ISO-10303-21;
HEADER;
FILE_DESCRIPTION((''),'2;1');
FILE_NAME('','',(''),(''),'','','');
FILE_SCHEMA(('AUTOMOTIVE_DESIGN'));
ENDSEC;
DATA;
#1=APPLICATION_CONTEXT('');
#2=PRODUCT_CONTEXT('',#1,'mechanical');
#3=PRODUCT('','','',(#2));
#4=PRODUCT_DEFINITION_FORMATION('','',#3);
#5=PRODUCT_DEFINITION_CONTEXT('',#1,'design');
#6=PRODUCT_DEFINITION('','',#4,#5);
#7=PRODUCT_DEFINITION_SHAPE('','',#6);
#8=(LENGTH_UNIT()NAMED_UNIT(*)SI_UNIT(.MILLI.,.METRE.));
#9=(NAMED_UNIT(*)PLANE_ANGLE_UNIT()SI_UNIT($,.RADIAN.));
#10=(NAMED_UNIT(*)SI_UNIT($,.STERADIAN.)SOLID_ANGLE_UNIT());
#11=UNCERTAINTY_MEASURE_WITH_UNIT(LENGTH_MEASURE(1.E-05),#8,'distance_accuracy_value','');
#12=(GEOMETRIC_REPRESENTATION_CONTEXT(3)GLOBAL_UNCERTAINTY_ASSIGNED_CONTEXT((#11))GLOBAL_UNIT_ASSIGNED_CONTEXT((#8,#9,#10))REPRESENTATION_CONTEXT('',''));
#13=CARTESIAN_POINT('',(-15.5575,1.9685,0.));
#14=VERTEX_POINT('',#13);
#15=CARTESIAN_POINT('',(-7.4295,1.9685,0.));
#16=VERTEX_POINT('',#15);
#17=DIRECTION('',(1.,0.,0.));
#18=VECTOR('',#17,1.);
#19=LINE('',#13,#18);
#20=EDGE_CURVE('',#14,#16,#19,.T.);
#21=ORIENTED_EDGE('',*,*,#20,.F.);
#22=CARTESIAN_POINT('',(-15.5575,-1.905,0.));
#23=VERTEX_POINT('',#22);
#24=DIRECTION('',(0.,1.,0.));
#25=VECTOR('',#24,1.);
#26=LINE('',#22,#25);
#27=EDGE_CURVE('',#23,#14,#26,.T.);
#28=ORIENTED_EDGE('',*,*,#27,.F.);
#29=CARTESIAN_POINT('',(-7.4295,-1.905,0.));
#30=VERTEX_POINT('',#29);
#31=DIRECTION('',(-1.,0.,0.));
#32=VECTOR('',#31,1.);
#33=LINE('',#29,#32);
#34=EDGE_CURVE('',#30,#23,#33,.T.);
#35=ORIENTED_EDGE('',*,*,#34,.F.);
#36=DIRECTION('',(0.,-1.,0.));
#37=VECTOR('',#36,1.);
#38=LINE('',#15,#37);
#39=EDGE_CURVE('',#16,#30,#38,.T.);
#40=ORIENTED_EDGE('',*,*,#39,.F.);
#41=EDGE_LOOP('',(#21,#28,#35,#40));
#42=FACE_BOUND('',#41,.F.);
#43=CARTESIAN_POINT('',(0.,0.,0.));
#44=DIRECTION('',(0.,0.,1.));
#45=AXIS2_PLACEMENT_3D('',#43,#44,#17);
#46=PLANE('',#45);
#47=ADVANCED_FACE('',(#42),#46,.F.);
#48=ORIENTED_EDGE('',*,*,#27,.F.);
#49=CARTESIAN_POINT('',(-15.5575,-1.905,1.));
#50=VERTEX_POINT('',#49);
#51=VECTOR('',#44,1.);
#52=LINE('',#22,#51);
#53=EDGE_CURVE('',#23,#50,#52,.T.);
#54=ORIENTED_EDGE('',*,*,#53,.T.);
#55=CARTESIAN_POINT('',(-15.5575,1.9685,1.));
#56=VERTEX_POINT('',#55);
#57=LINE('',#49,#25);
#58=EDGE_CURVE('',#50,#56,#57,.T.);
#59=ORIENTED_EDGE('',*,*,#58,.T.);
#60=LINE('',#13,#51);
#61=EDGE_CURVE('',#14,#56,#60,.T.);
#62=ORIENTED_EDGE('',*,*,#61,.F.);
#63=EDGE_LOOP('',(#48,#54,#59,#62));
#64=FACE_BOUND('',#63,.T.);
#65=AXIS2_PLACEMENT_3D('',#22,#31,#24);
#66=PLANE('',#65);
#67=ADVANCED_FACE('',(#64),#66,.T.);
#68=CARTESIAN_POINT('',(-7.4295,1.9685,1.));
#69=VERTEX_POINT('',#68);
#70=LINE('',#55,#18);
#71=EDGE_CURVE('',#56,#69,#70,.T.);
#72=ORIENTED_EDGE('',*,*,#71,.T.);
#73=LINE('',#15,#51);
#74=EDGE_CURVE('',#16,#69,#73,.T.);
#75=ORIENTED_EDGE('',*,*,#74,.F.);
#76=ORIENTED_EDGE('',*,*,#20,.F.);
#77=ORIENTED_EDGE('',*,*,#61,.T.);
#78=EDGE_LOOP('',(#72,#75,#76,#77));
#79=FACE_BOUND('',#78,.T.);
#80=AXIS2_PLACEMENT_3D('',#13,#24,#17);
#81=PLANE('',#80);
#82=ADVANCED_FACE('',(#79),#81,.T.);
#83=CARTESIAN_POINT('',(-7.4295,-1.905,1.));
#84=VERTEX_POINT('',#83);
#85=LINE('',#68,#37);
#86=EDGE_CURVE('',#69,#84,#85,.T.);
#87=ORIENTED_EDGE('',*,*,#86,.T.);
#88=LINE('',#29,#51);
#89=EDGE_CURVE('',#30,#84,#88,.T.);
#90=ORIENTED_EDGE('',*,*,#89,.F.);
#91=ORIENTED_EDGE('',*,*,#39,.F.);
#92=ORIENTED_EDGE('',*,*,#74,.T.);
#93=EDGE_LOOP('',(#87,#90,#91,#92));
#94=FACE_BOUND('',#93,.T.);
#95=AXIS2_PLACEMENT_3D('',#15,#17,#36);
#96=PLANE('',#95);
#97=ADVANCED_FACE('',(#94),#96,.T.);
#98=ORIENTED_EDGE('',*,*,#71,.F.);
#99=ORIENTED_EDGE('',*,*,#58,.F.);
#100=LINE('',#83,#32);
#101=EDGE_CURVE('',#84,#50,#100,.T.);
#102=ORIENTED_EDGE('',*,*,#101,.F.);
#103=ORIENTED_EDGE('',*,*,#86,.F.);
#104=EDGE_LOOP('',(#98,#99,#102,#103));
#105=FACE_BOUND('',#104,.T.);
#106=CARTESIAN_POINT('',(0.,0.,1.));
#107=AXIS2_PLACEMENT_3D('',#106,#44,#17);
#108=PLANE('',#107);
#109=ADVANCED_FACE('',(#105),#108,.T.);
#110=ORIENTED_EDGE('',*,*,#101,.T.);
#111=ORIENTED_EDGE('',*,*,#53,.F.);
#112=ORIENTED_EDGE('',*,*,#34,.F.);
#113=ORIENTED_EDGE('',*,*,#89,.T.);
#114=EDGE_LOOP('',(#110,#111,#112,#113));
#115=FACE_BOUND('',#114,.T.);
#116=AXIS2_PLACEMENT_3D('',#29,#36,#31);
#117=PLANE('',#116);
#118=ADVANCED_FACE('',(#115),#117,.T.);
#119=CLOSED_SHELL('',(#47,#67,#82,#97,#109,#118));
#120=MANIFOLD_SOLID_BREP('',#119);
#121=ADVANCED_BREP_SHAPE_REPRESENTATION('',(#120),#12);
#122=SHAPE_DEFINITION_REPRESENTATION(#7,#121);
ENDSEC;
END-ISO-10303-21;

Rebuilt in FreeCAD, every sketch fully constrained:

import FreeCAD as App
import Part
import Sketcher


def add_polygon(sketch, points):
    """Adds a closed chain of lines whose ends are joined by coincident constraints."""
    first, n = sketch.GeometryCount, len(points)
    for a, b in zip(points, points[1:] + points[:1]):
        sketch.addGeometry(Part.LineSegment(App.Vector(*a, 0), App.Vector(*b, 0)), False)
    for i in range(n):
        sketch.addConstraint(Sketcher.Constraint("Coincident", first + i, 2, first + (i + 1) % n, 1))

doc = App.newDocument("Part")
body = doc.addObject("PartDesign::Body", "Body")

sketch1 = body.newObject("Sketcher::SketchObject", "Sketch")
sketch1.AttachmentSupport = (doc.getObject("XY_Plane"), [""])
sketch1.MapMode = "FlatFace"
add_polygon(sketch1, [(-7.4295, 1.9685), (-15.5575, 1.9685), (-15.5575, -1.905), (-7.4295, -1.905)])
sketch1.addConstraint([
    Sketcher.Constraint("Horizontal", 0),
    Sketcher.Constraint("Vertical", 1),
    Sketcher.Constraint("Horizontal", 2),
    Sketcher.Constraint("Vertical", 3),
    Sketcher.Constraint("DistanceX", 0, 2, 0, 1, 8.128),
    Sketcher.Constraint("DistanceY", 1, 2, 1, 1, 3.8735),
    Sketcher.Constraint("DistanceY", 1, 2, -1, 1, 1.905),
    Sketcher.Constraint("DistanceX", 0, 2, -1, 1, 15.5575),
])
pad1 = body.newObject("PartDesign::Pad", "Pad")
pad1.Profile = sketch1
pad1.Length = 1

doc.recompute()
